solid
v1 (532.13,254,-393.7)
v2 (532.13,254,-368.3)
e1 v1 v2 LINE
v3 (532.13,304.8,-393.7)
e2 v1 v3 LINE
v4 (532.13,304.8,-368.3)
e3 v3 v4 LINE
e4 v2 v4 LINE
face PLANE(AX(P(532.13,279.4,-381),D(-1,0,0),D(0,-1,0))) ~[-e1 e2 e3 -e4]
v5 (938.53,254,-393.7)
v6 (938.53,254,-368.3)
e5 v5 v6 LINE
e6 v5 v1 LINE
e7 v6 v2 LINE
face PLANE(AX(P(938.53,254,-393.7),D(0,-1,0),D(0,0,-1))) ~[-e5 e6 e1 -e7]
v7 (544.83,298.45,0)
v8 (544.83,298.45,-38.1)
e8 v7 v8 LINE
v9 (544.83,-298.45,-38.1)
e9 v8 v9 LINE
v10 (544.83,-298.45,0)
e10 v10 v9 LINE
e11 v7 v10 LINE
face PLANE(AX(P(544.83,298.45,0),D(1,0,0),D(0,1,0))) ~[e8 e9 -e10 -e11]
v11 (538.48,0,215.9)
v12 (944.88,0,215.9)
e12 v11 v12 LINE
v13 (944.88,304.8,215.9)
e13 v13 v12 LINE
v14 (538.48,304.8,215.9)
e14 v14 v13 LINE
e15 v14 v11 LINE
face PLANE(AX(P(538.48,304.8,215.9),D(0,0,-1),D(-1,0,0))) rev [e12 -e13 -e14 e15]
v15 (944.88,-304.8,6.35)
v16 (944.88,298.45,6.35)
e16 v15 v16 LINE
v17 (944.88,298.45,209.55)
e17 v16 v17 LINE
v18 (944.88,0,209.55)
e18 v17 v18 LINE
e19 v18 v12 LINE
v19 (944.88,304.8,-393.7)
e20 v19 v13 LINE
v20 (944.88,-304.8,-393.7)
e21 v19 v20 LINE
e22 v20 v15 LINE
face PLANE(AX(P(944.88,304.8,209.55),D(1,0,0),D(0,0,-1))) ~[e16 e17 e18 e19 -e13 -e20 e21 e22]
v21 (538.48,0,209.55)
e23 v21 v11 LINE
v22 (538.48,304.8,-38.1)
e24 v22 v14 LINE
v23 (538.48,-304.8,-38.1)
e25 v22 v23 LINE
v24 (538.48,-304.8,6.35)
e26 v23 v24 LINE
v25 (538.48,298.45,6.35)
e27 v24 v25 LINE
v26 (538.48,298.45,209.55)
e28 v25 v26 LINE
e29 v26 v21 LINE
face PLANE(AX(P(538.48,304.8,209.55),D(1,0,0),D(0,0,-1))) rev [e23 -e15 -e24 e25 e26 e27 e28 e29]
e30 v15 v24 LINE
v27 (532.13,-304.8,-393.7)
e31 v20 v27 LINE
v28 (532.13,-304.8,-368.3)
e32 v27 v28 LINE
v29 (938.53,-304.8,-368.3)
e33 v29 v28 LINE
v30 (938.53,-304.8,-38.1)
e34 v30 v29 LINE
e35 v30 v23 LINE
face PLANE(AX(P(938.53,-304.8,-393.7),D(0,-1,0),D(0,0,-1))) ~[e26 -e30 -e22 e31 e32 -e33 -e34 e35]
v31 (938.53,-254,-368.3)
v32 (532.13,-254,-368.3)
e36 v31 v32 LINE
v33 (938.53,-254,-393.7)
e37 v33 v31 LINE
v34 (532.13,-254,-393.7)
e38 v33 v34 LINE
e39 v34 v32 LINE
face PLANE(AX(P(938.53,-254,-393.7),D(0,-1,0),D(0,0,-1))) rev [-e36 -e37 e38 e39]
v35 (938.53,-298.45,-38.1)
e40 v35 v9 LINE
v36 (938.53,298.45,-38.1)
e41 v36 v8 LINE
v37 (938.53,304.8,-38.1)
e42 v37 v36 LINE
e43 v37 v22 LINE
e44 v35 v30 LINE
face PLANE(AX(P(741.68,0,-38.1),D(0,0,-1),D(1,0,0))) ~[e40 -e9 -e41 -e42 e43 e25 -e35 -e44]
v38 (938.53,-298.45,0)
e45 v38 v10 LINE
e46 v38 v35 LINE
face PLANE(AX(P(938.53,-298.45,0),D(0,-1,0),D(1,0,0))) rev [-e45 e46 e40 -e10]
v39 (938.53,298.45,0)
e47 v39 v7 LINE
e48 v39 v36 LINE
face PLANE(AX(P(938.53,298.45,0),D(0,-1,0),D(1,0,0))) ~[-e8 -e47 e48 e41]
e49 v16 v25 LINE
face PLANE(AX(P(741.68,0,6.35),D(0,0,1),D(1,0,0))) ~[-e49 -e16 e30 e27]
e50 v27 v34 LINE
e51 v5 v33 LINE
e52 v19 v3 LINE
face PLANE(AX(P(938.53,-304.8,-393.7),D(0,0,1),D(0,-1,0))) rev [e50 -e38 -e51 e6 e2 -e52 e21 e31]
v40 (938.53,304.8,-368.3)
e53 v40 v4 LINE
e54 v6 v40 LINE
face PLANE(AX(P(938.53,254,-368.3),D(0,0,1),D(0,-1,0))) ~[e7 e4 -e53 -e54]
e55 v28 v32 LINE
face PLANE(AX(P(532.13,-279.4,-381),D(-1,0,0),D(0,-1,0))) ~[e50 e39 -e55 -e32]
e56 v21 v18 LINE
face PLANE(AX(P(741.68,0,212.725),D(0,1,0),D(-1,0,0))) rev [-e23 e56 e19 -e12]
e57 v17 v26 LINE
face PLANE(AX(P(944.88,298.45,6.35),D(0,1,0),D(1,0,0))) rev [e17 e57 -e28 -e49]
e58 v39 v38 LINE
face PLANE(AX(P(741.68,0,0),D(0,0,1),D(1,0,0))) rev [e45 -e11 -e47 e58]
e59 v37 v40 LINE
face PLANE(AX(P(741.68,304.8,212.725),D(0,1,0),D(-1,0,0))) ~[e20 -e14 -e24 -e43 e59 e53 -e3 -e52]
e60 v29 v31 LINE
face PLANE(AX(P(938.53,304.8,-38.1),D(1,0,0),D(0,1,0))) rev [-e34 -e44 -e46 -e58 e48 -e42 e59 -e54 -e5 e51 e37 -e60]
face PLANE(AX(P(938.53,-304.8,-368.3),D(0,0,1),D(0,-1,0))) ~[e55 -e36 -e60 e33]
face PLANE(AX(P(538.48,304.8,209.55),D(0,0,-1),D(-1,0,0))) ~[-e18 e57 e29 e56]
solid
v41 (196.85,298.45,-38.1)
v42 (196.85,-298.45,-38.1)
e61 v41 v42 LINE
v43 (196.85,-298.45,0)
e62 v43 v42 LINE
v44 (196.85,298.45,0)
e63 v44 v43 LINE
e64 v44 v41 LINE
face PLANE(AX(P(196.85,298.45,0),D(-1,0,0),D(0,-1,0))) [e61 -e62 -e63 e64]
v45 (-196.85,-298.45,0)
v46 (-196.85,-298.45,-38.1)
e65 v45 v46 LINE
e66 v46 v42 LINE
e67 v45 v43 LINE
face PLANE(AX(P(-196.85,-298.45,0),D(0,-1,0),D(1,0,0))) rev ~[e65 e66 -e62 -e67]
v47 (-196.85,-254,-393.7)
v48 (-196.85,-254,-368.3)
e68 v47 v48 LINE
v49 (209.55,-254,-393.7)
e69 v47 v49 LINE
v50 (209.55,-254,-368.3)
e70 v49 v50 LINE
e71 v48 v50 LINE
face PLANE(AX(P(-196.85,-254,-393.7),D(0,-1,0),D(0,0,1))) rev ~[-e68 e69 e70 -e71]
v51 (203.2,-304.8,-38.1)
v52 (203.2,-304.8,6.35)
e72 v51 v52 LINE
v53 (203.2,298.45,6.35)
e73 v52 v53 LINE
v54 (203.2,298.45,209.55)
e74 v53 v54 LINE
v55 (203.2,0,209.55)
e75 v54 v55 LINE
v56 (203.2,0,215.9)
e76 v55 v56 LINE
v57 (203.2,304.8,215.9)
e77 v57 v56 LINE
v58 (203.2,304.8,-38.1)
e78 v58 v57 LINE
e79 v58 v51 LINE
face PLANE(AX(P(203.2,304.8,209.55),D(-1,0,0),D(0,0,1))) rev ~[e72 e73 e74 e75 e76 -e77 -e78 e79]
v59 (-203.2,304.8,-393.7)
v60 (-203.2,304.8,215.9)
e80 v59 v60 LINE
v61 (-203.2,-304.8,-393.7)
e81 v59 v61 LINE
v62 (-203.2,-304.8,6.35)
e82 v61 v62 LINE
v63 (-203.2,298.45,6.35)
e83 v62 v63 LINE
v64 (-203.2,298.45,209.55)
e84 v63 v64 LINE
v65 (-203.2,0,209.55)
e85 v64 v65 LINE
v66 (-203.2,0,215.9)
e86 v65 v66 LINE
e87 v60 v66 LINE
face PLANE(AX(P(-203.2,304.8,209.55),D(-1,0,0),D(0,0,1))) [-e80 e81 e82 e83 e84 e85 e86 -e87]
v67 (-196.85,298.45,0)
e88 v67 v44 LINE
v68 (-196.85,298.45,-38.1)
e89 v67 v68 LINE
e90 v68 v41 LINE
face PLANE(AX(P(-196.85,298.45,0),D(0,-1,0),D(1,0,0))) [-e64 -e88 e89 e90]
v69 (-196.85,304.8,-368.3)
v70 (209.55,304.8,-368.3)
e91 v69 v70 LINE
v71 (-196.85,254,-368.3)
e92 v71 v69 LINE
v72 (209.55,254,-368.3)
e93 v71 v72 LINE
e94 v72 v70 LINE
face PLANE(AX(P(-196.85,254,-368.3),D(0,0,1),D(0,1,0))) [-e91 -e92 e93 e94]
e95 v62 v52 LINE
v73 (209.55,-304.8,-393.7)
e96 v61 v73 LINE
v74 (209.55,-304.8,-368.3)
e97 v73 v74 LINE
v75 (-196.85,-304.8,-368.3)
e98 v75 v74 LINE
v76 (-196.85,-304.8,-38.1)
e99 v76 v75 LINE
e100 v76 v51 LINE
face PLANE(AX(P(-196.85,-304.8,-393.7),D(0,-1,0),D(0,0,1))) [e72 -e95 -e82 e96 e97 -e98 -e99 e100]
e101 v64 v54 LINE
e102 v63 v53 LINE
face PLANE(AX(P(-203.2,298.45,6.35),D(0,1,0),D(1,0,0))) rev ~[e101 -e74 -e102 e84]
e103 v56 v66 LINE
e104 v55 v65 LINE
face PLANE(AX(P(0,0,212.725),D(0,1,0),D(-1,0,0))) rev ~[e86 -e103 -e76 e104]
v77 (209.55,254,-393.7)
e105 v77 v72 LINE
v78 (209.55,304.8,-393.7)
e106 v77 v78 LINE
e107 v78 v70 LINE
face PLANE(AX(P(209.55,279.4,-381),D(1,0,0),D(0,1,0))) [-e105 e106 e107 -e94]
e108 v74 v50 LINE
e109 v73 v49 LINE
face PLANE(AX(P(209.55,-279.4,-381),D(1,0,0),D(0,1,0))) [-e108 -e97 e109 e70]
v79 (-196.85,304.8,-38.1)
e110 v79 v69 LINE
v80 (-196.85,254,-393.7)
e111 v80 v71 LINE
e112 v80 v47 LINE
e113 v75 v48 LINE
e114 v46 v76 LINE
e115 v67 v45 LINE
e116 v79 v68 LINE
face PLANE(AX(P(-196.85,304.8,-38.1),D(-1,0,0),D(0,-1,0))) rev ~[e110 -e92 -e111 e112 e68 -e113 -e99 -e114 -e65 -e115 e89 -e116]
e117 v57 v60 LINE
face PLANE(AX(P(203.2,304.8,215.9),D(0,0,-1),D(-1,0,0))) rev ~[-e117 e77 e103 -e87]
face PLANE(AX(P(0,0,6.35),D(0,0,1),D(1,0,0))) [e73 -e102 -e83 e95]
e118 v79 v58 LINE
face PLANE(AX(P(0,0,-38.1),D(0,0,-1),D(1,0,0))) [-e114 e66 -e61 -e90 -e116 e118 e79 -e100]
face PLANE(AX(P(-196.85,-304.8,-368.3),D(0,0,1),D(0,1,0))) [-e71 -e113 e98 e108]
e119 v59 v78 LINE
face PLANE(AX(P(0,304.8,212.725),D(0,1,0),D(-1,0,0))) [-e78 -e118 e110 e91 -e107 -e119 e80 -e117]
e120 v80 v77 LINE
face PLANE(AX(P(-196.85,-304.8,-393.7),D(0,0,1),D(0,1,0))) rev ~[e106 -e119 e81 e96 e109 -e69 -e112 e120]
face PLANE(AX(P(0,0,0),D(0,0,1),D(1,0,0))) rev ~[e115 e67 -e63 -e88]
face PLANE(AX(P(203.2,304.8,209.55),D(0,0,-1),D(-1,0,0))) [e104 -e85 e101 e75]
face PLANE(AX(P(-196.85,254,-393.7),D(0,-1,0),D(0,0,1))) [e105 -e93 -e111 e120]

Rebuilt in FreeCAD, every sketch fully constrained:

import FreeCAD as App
import Part
import Sketcher
from FreeCAD import Vector
Q = App.Units.Quantity


def add_polygon(sketch, points):
    """Adds a closed chain of lines whose ends are joined by coincident constraints."""
    first, n = sketch.GeometryCount, len(points)
    for a, b in zip(points, points[1:] + points[:1]):
        sketch.addGeometry(Part.LineSegment(App.Vector(*a, 0), App.Vector(*b, 0)), False)
    for i in range(n):
        sketch.addConstraint(Sketcher.Constraint("Coincident", first + i, 2, first + (i + 1) % n, 1))

doc = App.newDocument("Part")
body = doc.addObject("PartDesign::Body", "Body")

# Sketch on XY plane
sketch1 = body.newObject("Sketcher::SketchObject", "Sketch")
sketch1.AttachmentSupport = (doc.getObject("XY_Plane"), [""])
sketch1.MapMode = "FlatFace"
add_polygon(sketch1, [(-203, 305), (-203, -305), (203, -305), (203, 305)])  # lines 0-3
sketch1.addConstraint([
    Sketcher.Constraint("Vertical", 0),
    Sketcher.Constraint("Horizontal", 1),
    Sketcher.Constraint("Vertical", 2),
    Sketcher.Constraint("Horizontal", 3),
    Sketcher.Constraint("Symmetric", 0, 2, 2, 2, -1, 1),
    Sketcher.Constraint("DistanceX", 1, 1, 1, 2, Q("16 in")),
    Sketcher.Constraint("DistanceY", 0, 2, 0, 1, Q("24 in")),
])
pad1 = body.newObject("PartDesign::Pad", "Pad")
pad1.Profile = sketch1
pad1.Length = Q("0.25 in")

# Sketch on XY plane
sketch2 = body.newObject("Sketcher::SketchObject", "Sketch001")
sketch2.AttachmentSupport = (doc.getObject("XY_Plane"), [""])
sketch2.MapMode = "FlatFace"
add_polygon(sketch2, [(-203, -305), (-203, 305), (203, 305), (203, -305)])  # lines 0-3
add_polygon(sketch2, [(197, 298), (-197, 298), (-197, -298), (197, -298)])  # lines 4-7
sketch2.addConstraint([
    Sketcher.Constraint("Vertical", 0),
    Sketcher.Constraint("Horizontal", 1),
    Sketcher.Constraint("Vertical", 2),
    Sketcher.Constraint("Horizontal", 3),
    Sketcher.Constraint("Horizontal", 4),
    Sketcher.Constraint("Vertical", 5),
    Sketcher.Constraint("Horizontal", 6),
    Sketcher.Constraint("Vertical", 7),
    Sketcher.Constraint("Symmetric", 0, 2, 2, 2, -1, 1),
    Sketcher.Constraint("Symmetric", 4, 2, 6, 2, -1, 1),
    Sketcher.Constraint("DistanceX", 1, 1, 1, 2, Q("16 in")),
    Sketcher.Constraint("DistanceY", 0, 1, 0, 2, Q("24 in")),
    Sketcher.Constraint("DistanceX", 4, 2, 4, 1, Q("15.5 in")),
    Sketcher.Constraint("DistanceY", 5, 2, 5, 1, Q("23.5 in")),
])
pad2 = body.newObject("PartDesign::Pad", "Pad001")
pad2.Profile = sketch2
pad2.Length = Q("1.5 in")
pad2.Reversed = True

# Sketch on XY plane
sketch3 = body.newObject("Sketcher::SketchObject", "Sketch002")
sketch3.AttachmentSupport = (doc.getObject("XY_Plane"), [""])
sketch3.MapMode = "FlatFace"
sketch3.AttachmentOffset = App.Placement(Vector(0, 0, -1.5 * 25.4), App.Rotation())
add_polygon(sketch3, [(-203, -305), (-203, 305), (-197, 305), (-197, -305)])  # lines 0-3
sketch3.addConstraint([
    Sketcher.Constraint("Vertical", 0),
    Sketcher.Constraint("Horizontal", 1),
    Sketcher.Constraint("Vertical", 2),
    Sketcher.Constraint("Horizontal", 3),
    Sketcher.Constraint("DistanceY", 0, 1, 0, 2, Q("24 in")),
    Sketcher.Constraint("DistanceX", 0, 2, -1, 1, Q("8 in")),
    Sketcher.Constraint("DistanceY", -1, 1, 0, 2, Q("12 in")),
    Sketcher.Constraint("DistanceX", 1, 1, 1, 2, Q("0.25 in")),
])
pad3 = body.newObject("PartDesign::Pad", "Pad002")
pad3.Profile = sketch3
pad3.Length = Q("14 in")
pad3.Reversed = True

# Sketch on XY plane
sketch4 = body.newObject("Sketcher::SketchObject", "Sketch003")
sketch4.AttachmentSupport = (doc.getObject("XY_Plane"), [""])
sketch4.MapMode = "FlatFace"
sketch4.AttachmentOffset = App.Placement(Vector(0, 0, 0.25 * 25.4), App.Rotation())
add_polygon(sketch4, [(-203, 305), (-203, 298), (203, 298), (203, 305)])  # lines 0-3
sketch4.addConstraint([
    Sketcher.Constraint("Vertical", 0),
    Sketcher.Constraint("Horizontal", 1),
    Sketcher.Constraint("Vertical", 2),
    Sketcher.Constraint("Horizontal", 3),
    Sketcher.Constraint("DistanceX", 1, 1, 1, 2, Q("16 in")),
    Sketcher.Constraint("DistanceX", 0, 2, -1, 1, Q("8 in")),
    Sketcher.Constraint("DistanceY", -1, 1, 2, 2, Q("12 in")),
    Sketcher.Constraint("DistanceY", 0, 2, 0, 1, Q("0.25 in")),
])
pad4 = body.newObject("PartDesign::Pad", "Pad003")
pad4.Profile = sketch4
pad4.Length = Q("8 in")

# Sketch on XZ plane
sketch5 = body.newObject("Sketcher::SketchObject", "Sketch004")
sketch5.AttachmentSupport = (doc.getObject("XZ_Plane"), [""])
sketch5.MapMode = "FlatFace"
sketch5.AttachmentOffset = App.Placement(Vector(0, 0, -12 * 25.4), App.Rotation())
add_polygon(sketch5, [(203, 216), (203, 210), (-203, 210), (-203, 216)])  # lines 0-3
sketch5.addConstraint([
    Sketcher.Constraint("Vertical", 0),
    Sketcher.Constraint("Horizontal", 1),
    Sketcher.Constraint("Vertical", 2),
    Sketcher.Constraint("Horizontal", 3),
    Sketcher.Constraint("DistanceX", 1, 2, 1, 1, Q("16 in")),
    Sketcher.Constraint("DistanceX", -1, 1, 0, 2, Q("8 in")),
    Sketcher.Constraint("DistanceY", 0, 2, 0, 1, Q("0.25 in")),
    Sketcher.Constraint("DistanceY", -1, 1, 2, 2, Q("8.5 in")),
])
pad5 = body.newObject("PartDesign::Pad", "Pad004")
pad5.Profile = sketch5
pad5.Length = Q("12 in")

# Sketch on YZ plane
sketch6 = body.newObject("Sketcher::SketchObject", "Sketch005")
sketch6.AttachmentSupport = (doc.getObject("YZ_Plane"), [""])
sketch6.MapMode = "FlatFace"
sketch6.AttachmentOffset = App.Placement(Vector(0, 0, -7.75 * 25.4), App.Rotation())
add_polygon(sketch6, [(-305, -368), (-305, -394), (-254, -394), (-254, -368)])  # lines 0-3
add_polygon(sketch6, [(254, -368), (254, -394), (305, -394), (305, -368)])  # lines 4-7
sketch6.addConstraint([
    Sketcher.Constraint("Vertical", 0),
    Sketcher.Constraint("Horizontal", 1),
    Sketcher.Constraint("Vertical", 2),
    Sketcher.Constraint("Horizontal", 3),
    Sketcher.Constraint("Vertical", 4),
    Sketcher.Constraint("Horizontal", 5),
    Sketcher.Constraint("Vertical", 6),
    Sketcher.Constraint("Horizontal", 7),
    Sketcher.Constraint("Symmetric", 1, 2, 4, 2, -2),
    Sketcher.Constraint("Symmetric", 3, 2, 6, 2, -2),
    Sketcher.Constraint("DistanceX", 1, 1, 1, 2, Q("2 in")),
    Sketcher.Constraint("DistanceY", 0, 2, 0, 1, Q("1 in")),
    Sketcher.Constraint("DistanceX", 0, 2, -1, 1, Q("12 in")),
    Sketcher.Constraint("DistanceY", 0, 2, -1, 1, Q("15.5 in")),
])
pad6 = body.newObject("PartDesign::Pad", "Pad005")
pad6.Profile = sketch6
pad6.Length = Q("16 in")
body2 = doc.addObject("PartDesign::Body", "Body001")
doc.recompute()

mirroring = doc.addObject("Part::Mirroring", "Mirroring")
mirroring.Source = body
mirroring.Base = Vector(370.84, 22.562766, 3.985638)
mirroring.Normal = Vector(1, 0, 0)
body2.BaseFeature = mirroring
doc.recompute()
mirroring.Visibility = False

doc.recompute()
